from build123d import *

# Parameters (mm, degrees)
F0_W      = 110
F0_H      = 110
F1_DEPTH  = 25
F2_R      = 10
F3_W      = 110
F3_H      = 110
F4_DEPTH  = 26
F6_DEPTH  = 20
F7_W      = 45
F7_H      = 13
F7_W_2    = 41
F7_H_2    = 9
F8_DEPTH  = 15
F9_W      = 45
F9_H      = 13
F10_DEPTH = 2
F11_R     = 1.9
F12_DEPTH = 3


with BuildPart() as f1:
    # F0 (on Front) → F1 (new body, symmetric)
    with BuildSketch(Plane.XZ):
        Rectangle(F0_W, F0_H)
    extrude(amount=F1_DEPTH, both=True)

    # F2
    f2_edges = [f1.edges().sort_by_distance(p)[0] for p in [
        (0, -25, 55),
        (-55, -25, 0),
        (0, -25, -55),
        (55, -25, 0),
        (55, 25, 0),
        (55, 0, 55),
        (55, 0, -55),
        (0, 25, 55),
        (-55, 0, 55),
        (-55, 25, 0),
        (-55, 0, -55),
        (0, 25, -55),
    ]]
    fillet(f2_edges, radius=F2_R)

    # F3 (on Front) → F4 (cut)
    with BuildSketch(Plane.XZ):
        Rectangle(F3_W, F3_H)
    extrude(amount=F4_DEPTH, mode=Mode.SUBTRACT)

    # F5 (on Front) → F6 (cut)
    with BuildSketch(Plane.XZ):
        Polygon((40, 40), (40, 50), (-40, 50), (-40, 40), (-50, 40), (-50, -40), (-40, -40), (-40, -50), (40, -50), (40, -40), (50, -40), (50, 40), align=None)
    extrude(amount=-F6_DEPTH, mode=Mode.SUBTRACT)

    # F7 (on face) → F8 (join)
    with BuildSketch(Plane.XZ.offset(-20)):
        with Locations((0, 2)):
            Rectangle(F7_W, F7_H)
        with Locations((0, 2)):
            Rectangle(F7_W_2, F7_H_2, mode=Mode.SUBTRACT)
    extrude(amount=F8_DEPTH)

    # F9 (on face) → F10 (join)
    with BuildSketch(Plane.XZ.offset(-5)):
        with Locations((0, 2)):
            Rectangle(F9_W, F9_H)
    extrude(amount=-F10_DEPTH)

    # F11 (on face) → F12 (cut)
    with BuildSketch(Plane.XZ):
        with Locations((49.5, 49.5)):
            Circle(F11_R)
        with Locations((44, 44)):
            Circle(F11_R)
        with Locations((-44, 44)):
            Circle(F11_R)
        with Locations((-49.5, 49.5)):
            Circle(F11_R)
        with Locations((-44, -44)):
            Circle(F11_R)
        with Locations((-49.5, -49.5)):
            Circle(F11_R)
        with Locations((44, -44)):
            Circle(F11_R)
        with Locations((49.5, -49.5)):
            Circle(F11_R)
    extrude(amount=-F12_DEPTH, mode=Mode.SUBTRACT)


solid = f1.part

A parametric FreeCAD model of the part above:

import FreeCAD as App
import Part
import Sketcher
from FreeCAD import Vector
Q = App.Units.Quantity


def add_polygon(sketch, points):
    """Adds a closed chain of lines whose ends are joined by coincident constraints."""
    first, n = sketch.GeometryCount, len(points)
    for a, b in zip(points, points[1:] + points[:1]):
        sketch.addGeometry(Part.LineSegment(App.Vector(*a, 0), App.Vector(*b, 0)), False)
    for i in range(n):
        sketch.addConstraint(Sketcher.Constraint("Coincident", first + i, 2, first + (i + 1) % n, 1))

doc = App.newDocument("Part")
body = doc.addObject("PartDesign::Body", "Body")

sketch1 = body.newObject("Sketcher::SketchObject", "Sketch")
sketch1.AttachmentSupport = (doc.getObject("XZ_Plane"), [""])
sketch1.MapMode = "FlatFace"
add_polygon(sketch1, [(-55, 55), (-55, -55), (55, -55), (55, 55)])
sketch1.addConstraint([
    Sketcher.Constraint("Vertical", 0),
    Sketcher.Constraint("Horizontal", 1),
    Sketcher.Constraint("Vertical", 2),
    Sketcher.Constraint("Horizontal", 3),
    Sketcher.Constraint("Symmetric", 0, 2, 2, 2, -1, 1),
    Sketcher.Constraint("Equal", 3, 0),
    Sketcher.Constraint("DistanceX", 1, 1, 1, 2, Q("110 mm")),
])
pad1 = body.newObject("PartDesign::Pad", "Pad")
pad1.Profile = sketch1
pad1.Length = 50
pad1.Midplane = True
doc.recompute()

fillet = body.newObject("PartDesign::Fillet", "Fillet")
fillet.Base = (pad1, ["Edge1"])
fillet.UseAllEdges = True
fillet.Radius = 10

sketch2 = body.newObject("Sketcher::SketchObject", "Sketch001")
sketch2.AttachmentSupport = (doc.getObject("XZ_Plane"), [""])
sketch2.MapMode = "FlatFace"
add_polygon(sketch2, [(-55, 55), (-55, -55), (55, -55), (55, 55)])
sketch2.addConstraint([
    Sketcher.Constraint("Vertical", 0),
    Sketcher.Constraint("Horizontal", 1),
    Sketcher.Constraint("Vertical", 2),
    Sketcher.Constraint("Horizontal", 3),
    Sketcher.Constraint("Symmetric", 0, 2, 2, 2, -1, 1),
    Sketcher.Constraint("Equal", 3, 0),
    Sketcher.Constraint("DistanceX", 1, 1, 1, 2, Q("110 mm")),
])
pocket1 = body.newObject("PartDesign::Pocket", "Pocket")
pocket1.Profile = sketch2
pocket1.Length = 26
pocket1.Reversed = True

sketch3 = body.newObject("Sketcher::SketchObject", "Sketch002")
sketch3.AttachmentSupport = (doc.getObject("XZ_Plane"), [""])
sketch3.MapMode = "FlatFace"
add_polygon(sketch3, [(40, 40), (40, 50), (-40, 50), (-40, 40), (-50, 40), (-50, -40), (-40, -40), (-40, -50), (40, -50), (40, -40), (50, -40), (50, 40)])
sketch3.addConstraint([
    Sketcher.Constraint("Vertical", 0),
    Sketcher.Constraint("Horizontal", 1),
    Sketcher.Constraint("Vertical", 2),
    Sketcher.Constraint("Horizontal", 3),
    Sketcher.Constraint("Vertical", 4),
    Sketcher.Constraint("Horizontal", 5),
    Sketcher.Constraint("Vertical", 6),
    Sketcher.Constraint("Horizontal", 7),
    Sketcher.Constraint("Vertical", 8),
    Sketcher.Constraint("Horizontal", 9),
    Sketcher.Constraint("Vertical", 10),
    Sketcher.Constraint("Horizontal", 11),
    Sketcher.Constraint("Symmetric", 0, 2, 6, 2, -1, 1),
    Sketcher.Constraint("Symmetric", 2, 2, 8, 2, -1, 1),
    Sketcher.Constraint("Symmetric", 4, 2, 10, 2, -1, 1),
    Sketcher.Constraint("Symmetric", 5, 2, 8, 2, -2),
    Sketcher.Constraint("Equal", 11, 0),
    Sketcher.Constraint("Equal", 7, 4),
    Sketcher.Constraint("DistanceX", 1, 2, 1, 1, Q("80 mm")),
    Sketcher.Constraint("DistanceX", 3, 2, 3, 1, Q("10 mm")),
])
pocket2 = body.newObject("PartDesign::Pocket", "Pocket001")
pocket2.Profile = sketch3
pocket2.Length = 20

sketch4 = body.newObject("Sketcher::SketchObject", "Sketch003")
sketch4.AttachmentSupport = (doc.getObject("XZ_Plane"), [""])
sketch4.MapMode = "FlatFace"
sketch4.AttachmentOffset = App.Placement(Vector(0, 0, -20), App.Rotation())
add_polygon(sketch4, [(-22, 8), (-22, -4), (22, -4), (22, 8)])
add_polygon(sketch4, [(20, -2), (-20, -2), (-20, 6), (20, 6)])
sketch4.addConstraint([
    Sketcher.Constraint("Vertical", 0),
    Sketcher.Constraint("Horizontal", 1),
    Sketcher.Constraint("Vertical", 2),
    Sketcher.Constraint("Horizontal", 3),
    Sketcher.Constraint("Horizontal", 4),
    Sketcher.Constraint("Vertical", 5),
    Sketcher.Constraint("Horizontal", 6),
    Sketcher.Constraint("Vertical", 7),
    Sketcher.Constraint("DistanceX", 1, 1, 1, 2, Q("45 mm")),
    Sketcher.Constraint("DistanceX", 4, 2, 4, 1, Q("41 mm")),
    Sketcher.Constraint("DistanceY", 0, 2, 0, 1, Q("13 mm")),
    Sketcher.Constraint("DistanceY", 5, 1, 5, 2, Q("9 mm")),
    Sketcher.Constraint("DistanceX", 0, 2, 4, 2, Q("2 mm")),
    Sketcher.Constraint("DistanceY", 0, 2, 4, 2, Q("2 mm")),
    Sketcher.Constraint("DistanceX", 0, 2, -1, 1, Q("22.5 mm")),
    Sketcher.Constraint("DistanceY", 0, 2, -1, 1, Q("4.5 mm")),
])
pad2 = body.newObject("PartDesign::Pad", "Pad001")
pad2.Profile = sketch4
pad2.Length = 15

sketch5 = body.newObject("Sketcher::SketchObject", "Sketch004")
sketch5.AttachmentSupport = (doc.getObject("XZ_Plane"), [""])
sketch5.MapMode = "FlatFace"
sketch5.AttachmentOffset = App.Placement(Vector(0, 0, -5), App.Rotation())
add_polygon(sketch5, [(-22, 8), (-22, -4), (22, -4), (22, 8)])
sketch5.addConstraint([
    Sketcher.Constraint("Vertical", 0),
    Sketcher.Constraint("Horizontal", 1),
    Sketcher.Constraint("Vertical", 2),
    Sketcher.Constraint("Horizontal", 3),
    Sketcher.Constraint("DistanceX", 1, 1, 1, 2, Q("45 mm")),
    Sketcher.Constraint("DistanceY", 0, 2, 0, 1, Q("13 mm")),
    Sketcher.Constraint("DistanceX", 0, 2, -1, 1, Q("22.5 mm")),
    Sketcher.Constraint("DistanceY", 0, 2, -1, 1, Q("4.5 mm")),
])
pad3 = body.newObject("PartDesign::Pad", "Pad002")
pad3.Profile = sketch5
pad3.Length = 2
pad3.Reversed = True

sketch6 = body.newObject("Sketcher::SketchObject", "Sketch005")
sketch6.AttachmentSupport = (doc.getObject("XZ_Plane"), [""])
sketch6.MapMode = "FlatFace"
sketch6.addGeometry([
    Part.Circle(Vector(49.5, 49.5, 0), Vector(0, 0, 1), 1.9),
    Part.Circle(Vector(44, 44, 0), Vector(0, 0, 1), 1.9),
    Part.Circle(Vector(-44, 44, 0), Vector(0, 0, 1), 1.9),
    Part.Circle(Vector(-49.5, 49.5, 0), Vector(0, 0, 1), 1.9),
    Part.Circle(Vector(-44, -44, 0), Vector(0, 0, 1), 1.9),
    Part.Circle(Vector(-49.5, -49.5, 0), Vector(0, 0, 1), 1.9),
    Part.Circle(Vector(44, -44, 0), Vector(0, 0, 1), 1.9),
    Part.Circle(Vector(49.5, -49.5, 0), Vector(0, 0, 1), 1.9),
], False)
sketch6.addConstraint([
    Sketcher.Constraint("Equal", 0, 1),
    Sketcher.Constraint("Equal", 1, 2),
    Sketcher.Constraint("Equal", 2, 3),
    Sketcher.Constraint("Equal", 3, 4),
    Sketcher.Constraint("Equal", 4, 5),
    Sketcher.Constraint("Equal", 5, 6),
    Sketcher.Constraint("Equal", 6, 7),
    Sketcher.Constraint("Symmetric", 1, 3, 4, 3, -1, 1),
    Sketcher.Constraint("Symmetric", 0, 3, 5, 3, -1, 1),
    Sketcher.Constraint("Symmetric", 2, 3, 6, 3, -1, 1),
    Sketcher.Constraint("Symmetric", 3, 3, 7, 3, -1, 1),
    Sketcher.Constraint("Symmetric", 1, 3, 2, 3, -2),
    Sketcher.Constraint("Symmetric", 0, 3, 3, 3, -2),
    Sketcher.Constraint("Diameter", 0, Q("3.8 mm")),
    Sketcher.Constraint("DistanceX", -1, 1, 1, 3, Q("44 mm")),
    Sketcher.Constraint("DistanceY", -1, 1, 1, 3, Q("44 mm")),
    Sketcher.Constraint("DistanceX", 3, 3, 0, 3, Q("99 mm")),
    Sketcher.Constraint("DistanceY", 5, 3, 3, 3, Q("99 mm")),
])
pocket3 = body.newObject("PartDesign::Pocket", "Pocket002")
pocket3.Profile = sketch6
pocket3.Length = 3

doc.recompute()
